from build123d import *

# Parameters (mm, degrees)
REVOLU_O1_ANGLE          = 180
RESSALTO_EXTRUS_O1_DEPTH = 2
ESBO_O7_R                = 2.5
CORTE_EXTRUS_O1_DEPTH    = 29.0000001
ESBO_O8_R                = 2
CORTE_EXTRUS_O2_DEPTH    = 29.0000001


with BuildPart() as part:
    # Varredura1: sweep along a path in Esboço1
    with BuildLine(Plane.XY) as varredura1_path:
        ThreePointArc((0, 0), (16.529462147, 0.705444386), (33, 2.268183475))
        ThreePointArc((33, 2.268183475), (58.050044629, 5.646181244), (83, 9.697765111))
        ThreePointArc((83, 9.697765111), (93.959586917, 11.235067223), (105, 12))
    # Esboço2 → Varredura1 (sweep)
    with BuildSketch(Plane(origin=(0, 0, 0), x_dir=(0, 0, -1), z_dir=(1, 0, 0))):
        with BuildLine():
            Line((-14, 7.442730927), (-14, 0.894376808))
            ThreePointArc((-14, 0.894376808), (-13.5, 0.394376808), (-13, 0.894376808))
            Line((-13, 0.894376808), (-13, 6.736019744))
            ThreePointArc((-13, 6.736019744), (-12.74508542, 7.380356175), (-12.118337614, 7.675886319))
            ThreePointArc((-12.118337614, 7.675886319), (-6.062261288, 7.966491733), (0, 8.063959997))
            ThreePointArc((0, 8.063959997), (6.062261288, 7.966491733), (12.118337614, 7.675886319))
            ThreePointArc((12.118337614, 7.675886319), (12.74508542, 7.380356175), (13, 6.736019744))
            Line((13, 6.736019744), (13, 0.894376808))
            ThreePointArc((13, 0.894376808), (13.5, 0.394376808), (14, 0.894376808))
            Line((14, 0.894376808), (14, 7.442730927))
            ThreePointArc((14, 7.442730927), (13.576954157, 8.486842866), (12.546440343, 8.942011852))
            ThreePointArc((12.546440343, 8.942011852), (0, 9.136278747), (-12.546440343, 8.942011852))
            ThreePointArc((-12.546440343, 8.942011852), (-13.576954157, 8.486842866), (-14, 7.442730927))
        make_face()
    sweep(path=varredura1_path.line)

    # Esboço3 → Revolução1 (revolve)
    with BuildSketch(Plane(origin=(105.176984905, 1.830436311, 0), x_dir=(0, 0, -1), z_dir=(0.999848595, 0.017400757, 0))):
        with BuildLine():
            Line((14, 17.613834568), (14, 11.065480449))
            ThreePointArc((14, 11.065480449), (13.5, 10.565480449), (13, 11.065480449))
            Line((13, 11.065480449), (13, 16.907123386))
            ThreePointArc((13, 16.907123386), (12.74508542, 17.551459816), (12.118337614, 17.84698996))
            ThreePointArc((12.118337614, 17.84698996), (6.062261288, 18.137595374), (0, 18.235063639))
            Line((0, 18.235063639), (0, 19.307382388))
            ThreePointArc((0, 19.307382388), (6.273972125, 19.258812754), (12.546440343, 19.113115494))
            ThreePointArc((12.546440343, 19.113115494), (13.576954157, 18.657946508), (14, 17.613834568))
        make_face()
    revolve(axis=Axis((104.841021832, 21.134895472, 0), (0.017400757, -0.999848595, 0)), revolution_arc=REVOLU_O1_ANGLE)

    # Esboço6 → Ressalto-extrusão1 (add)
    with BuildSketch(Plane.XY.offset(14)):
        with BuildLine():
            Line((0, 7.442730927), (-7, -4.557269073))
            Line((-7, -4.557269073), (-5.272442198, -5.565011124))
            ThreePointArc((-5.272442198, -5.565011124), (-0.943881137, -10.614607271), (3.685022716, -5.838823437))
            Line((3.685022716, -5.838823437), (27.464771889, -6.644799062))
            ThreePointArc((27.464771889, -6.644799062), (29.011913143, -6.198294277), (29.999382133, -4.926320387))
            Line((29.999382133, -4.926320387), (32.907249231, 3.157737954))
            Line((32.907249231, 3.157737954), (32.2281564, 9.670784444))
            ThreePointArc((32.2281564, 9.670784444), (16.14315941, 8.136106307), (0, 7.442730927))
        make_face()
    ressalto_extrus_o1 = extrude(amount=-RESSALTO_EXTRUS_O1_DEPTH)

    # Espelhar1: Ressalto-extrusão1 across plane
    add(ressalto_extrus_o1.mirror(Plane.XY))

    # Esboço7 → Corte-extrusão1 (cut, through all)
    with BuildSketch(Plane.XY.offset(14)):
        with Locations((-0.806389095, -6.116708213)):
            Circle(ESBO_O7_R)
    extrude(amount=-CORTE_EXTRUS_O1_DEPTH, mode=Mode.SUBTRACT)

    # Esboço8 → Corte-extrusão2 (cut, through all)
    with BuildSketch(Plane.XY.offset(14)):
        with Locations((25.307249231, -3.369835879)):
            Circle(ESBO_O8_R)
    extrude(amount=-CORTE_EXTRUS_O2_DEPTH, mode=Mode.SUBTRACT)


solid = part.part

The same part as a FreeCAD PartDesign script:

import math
import FreeCAD as App
import Part
import Sketcher
from FreeCAD import Vector
Q = App.Units.Quantity

doc = App.newDocument("Part")
body = doc.addObject("PartDesign::Body", "Body")

# Sketch on YZ plane
sketch1 = body.newObject("Sketcher::SketchObject", "Sketch")
sketch1.AttachmentSupport = (doc.getObject("YZ_Plane"), [""])
sketch1.MapMode = "FlatFace"
sketch1.addGeometry([
    Part.LineSegment(Vector(7.442731, 14, 0), Vector(0.894377, 14, 0)),  # 0
    Part.ArcOfCircle(Part.Circle(Vector(0.894377, 13.5, 0), Vector(0, 0, 1), 0.5), math.radians(90), math.radians(270)),  # 1
    Part.LineSegment(Vector(0.894377, 13, 0), Vector(6.73602, 13, 0)),  # 2
    Part.ArcOfCircle(Part.Circle(Vector(6.73602, 12.058212, 0), Vector(0, 0, 1), 0.941788), math.radians(3.660354), math.radians(90)),  # 3
    Part.ArcOfCircle(Part.Circle(Vector(-182.172237, -0.026679, 0), Vector(0, 0, 1), 190.236199), math.radians(0.008035), math.radians(3.660354)),  # 4
    Part.ArcOfCircle(Part.Circle(Vector(-182.172237, 0.026679, 0), Vector(0, 0, 1), 190.236199), math.radians(-3.660354), math.radians(-0.008035)),  # 5
    Part.ArcOfCircle(Part.Circle(Vector(6.73602, -12.058212, 0), Vector(0, 0, 1), 0.941788), math.radians(-90), math.radians(-3.660354)),  # 6
    Part.LineSegment(Vector(6.73602, -13, 0), Vector(0.894377, -13, 0)),  # 7
    Part.ArcOfCircle(Part.Circle(Vector(0.894377, -13.5, 0), Vector(0, 0, 1), 0.5), math.radians(90), math.radians(270)),  # 8
    Part.LineSegment(Vector(0.894377, -14, 0), Vector(7.442731, -14, 0)),  # 9
    Part.ArcOfCircle(Part.Circle(Vector(7.442731, -12.5, 0), Vector(0, 0, 1), 1.5), math.radians(-90), math.radians(-1.774174)),  # 10
    Part.ArcOfCircle(Part.Circle(Vector(-396.107509, 0, 0), Vector(0, 0, 1), 405.243788), math.radians(-1.774174), math.radians(1.774174)),  # 11
    Part.ArcOfCircle(Part.Circle(Vector(7.442731, 12.5, 0), Vector(0, 0, 1), 1.5), math.radians(1.774174), math.radians(90)),  # 12
], False)
sketch1.addConstraint([
    Sketcher.Constraint("Tangent", 0, 2, 1, 1),
    Sketcher.Constraint("Tangent", 1, 2, 2, 1),
    Sketcher.Constraint("Tangent", 2, 2, 3, 2),
    Sketcher.Constraint("Tangent", 3, 1, 4, 2),
    Sketcher.Constraint("Coincident", 4, 1, 5, 2),
    Sketcher.Constraint("Tangent", 5, 1, 6, 2),
    Sketcher.Constraint("Tangent", 6, 1, 7, 1),
    Sketcher.Constraint("Tangent", 7, 2, 8, 1),
    Sketcher.Constraint("Tangent", 8, 2, 9, 1),
    Sketcher.Constraint("Tangent", 9, 2, 10, 1),
    Sketcher.Constraint("Tangent", 10, 2, 11, 1),
    Sketcher.Constraint("Tangent", 11, 2, 12, 1),
    Sketcher.Constraint("Tangent", 12, 2, 0, 1),
    Sketcher.Constraint("Horizontal", 0),
    Sketcher.Constraint("Horizontal", 2),
    Sketcher.Constraint("Horizontal", 7),
    Sketcher.Constraint("Horizontal", 9),
    Sketcher.Constraint("Equal", 4, 5),
    Sketcher.Constraint("Equal", 3, 6),
    Sketcher.Constraint("Equal", 1, 8),
    Sketcher.Constraint("Equal", 10, 12),
    Sketcher.Constraint("Symmetric", 4, 3, 5, 3, -1),
    Sketcher.Constraint("Symmetric", 1, 3, 8, 3, -1),
    Sketcher.Constraint("PointOnObject", 11, 3, -1),
    Sketcher.Constraint("Radius", 1, Q("0.5 mm")),
    Sketcher.Constraint("Radius", 10, Q("1.5 mm")),
    Sketcher.Constraint("DistanceY", -1, 1, 0, 2, Q("14 mm")),
    Sketcher.Constraint("Radius", 4, Q("190.236199 mm")),
    Sketcher.Constraint("Radius", 11, Q("405.243788 mm")),
    Sketcher.Constraint("Radius", 3, Q("0.941788 mm")),
    Sketcher.Constraint("DistanceX", 0, 2, 0, 1, Q("6.548354 mm")),
    Sketcher.Constraint("DistanceX", 2, 1, 2, 2, Q("5.841643 mm")),
    Sketcher.Constraint("DistanceX", -1, 1, 3, 3, Q("6.73602 mm")),
    Sketcher.Constraint("DistanceY", 4, 3, -1, 1, Q("0.026679 mm")),
])

# Sketch on XY plane
sketch2 = body.newObject("Sketcher::SketchObject", "Sketch001")
sketch2.AttachmentSupport = (doc.getObject("XY_Plane"), [""])
sketch2.MapMode = "FlatFace"
sketch2.addGeometry([
    Part.ArcOfCircle(Part.Circle(Vector(-5, 318, 0), Vector(0, 0, 1), 319), math.radians(-89.04), math.radians(-83.09)),
    Part.ArcOfCircle(Part.Circle(Vector(-80, 934, 0), Vector(0, 0, 1), 938), math.radians(-83.09), math.radians(-80)),
    Part.ArcOfCircle(Part.Circle(Vector(110, -146, 0), Vector(0, 0, 1), 158), math.radians(91.95), math.radians(100)),
], False)
sketch2.addConstraint([
    Sketcher.Constraint("Tangent", 0, 2, 1, 1),
    Sketcher.Constraint("Tangent", 1, 2, 2, 2),
    Sketcher.Constraint("Coincident", 0, 1, -1, 1),
    Sketcher.Constraint("DistanceX", -1, 1, 0, 2, Q("33 mm")),
    Sketcher.Constraint("DistanceX", -1, 1, 2, 1, Q("105 mm")),
    Sketcher.Constraint("DistanceY", -1, 1, 2, 1, Q("12 mm")),
    Sketcher.Constraint("Radius", 1, Q("938.22726 mm")),
    Sketcher.Constraint("Radius", 2, Q("157.71041 mm")),
    Sketcher.Constraint("Radius", 0, Q("318.532817 mm")),
    Sketcher.Constraint("DistanceY", 0, 2, 1, 3, Q("931.4159 mm")),
])
doc.recompute()

additivepipe = body.newObject("PartDesign::AdditivePipe", "AdditivePipe")
additivepipe.Profile = sketch1
additivepipe.Spine = (sketch2, ["Edge1", "Edge2", "Edge3"])

# Sketch on an angled plane
sketch3 = body.newObject("Sketcher::SketchObject", "Sketch002")
sketch3.Placement = App.Placement(Vector(105.176985, 1.830436, 0), App.Rotation(Vector(0, 0, -1), Vector(-0.017400757, 0.999848595, 0), Vector(0.999848595, 0.017400757, 0), "ZXY"))
sketch3.addGeometry([
    Part.LineSegment(Vector(14, 11.1, 0), Vector(14, 17.6, 0)),  # 0
    Part.ArcOfCircle(Part.Circle(Vector(12.5, 17.6, 0), Vector(0, 0, 1), 1.5), math.radians(0), math.radians(88)),  # 1
    Part.ArcOfCircle(Part.Circle(Vector(0, -385.9, 0), Vector(0, 0, 1), 405.2), math.radians(88.23), math.radians(90)),  # 2
    Part.LineSegment(Vector(0, 19.3, 0), Vector(0, 18.2, 0)),  # 3
    Part.ArcOfCircle(Part.Circle(Vector(0, -172, 0), Vector(0, 0, 1), 190.2), math.radians(86.34), math.radians(89.99)),  # 4
    Part.ArcOfCircle(Part.Circle(Vector(12.1, 16.9, 0), Vector(0, 0, 1), 0.9), math.radians(0), math.radians(86)),  # 5
    Part.LineSegment(Vector(13, 16.9, 0), Vector(13, 11.1, 0)),  # 6
    Part.ArcOfCircle(Part.Circle(Vector(13.5, 11.1, 0), Vector(0, 0, 1), 0.5), math.radians(180), math.radians(360)),  # 7
], False)
sketch3.addConstraint([
    Sketcher.Constraint("Tangent", 0, 2, 1, 1),
    Sketcher.Constraint("Tangent", 1, 2, 2, 1),
    Sketcher.Constraint("Coincident", 2, 2, 3, 1),
    Sketcher.Constraint("Coincident", 3, 2, 4, 2),
    Sketcher.Constraint("Tangent", 4, 1, 5, 2),
    Sketcher.Constraint("Tangent", 5, 1, 6, 1),
    Sketcher.Constraint("Tangent", 6, 2, 7, 1),
    Sketcher.Constraint("Tangent", 7, 2, 0, 1),
    Sketcher.Constraint("Vertical", 0),
    Sketcher.Constraint("Vertical", 3),
    Sketcher.Constraint("Vertical", 6),
    Sketcher.Constraint("PointOnObject", 2, 3, -2),
    Sketcher.Constraint("PointOnObject", 3, 2, -2),
    Sketcher.Constraint("Radius", 1, Q("1.5 mm")),
    Sketcher.Constraint("Radius", 7, Q("0.5 mm")),
    Sketcher.Constraint("DistanceX", -1, 1, 0, 2, Q("14 mm")),
    Sketcher.Constraint("Radius", 4, Q("190.2362 mm")),
    Sketcher.Constraint("Radius", 2, Q("405.243789 mm")),
    Sketcher.Constraint("Radius", 5, Q("0.941788 mm")),
    Sketcher.Constraint("DistanceY", 3, 2, 3, 1, Q("1.072319 mm")),
    Sketcher.Constraint("DistanceY", 0, 1, 0, 2, Q("6.548354 mm")),
    Sketcher.Constraint("DistanceY", 6, 2, 6, 1, Q("5.841643 mm")),
    Sketcher.Constraint("DistanceY", -1, 1, 7, 3, Q("11.06548 mm")),
])
revolution = body.newObject("PartDesign::Revolution", "Revolution")
revolution.Profile = sketch3
revolution.ReferenceAxis = (sketch3, ["V_Axis"])
revolution.Angle = 180
revolution.Reversed = True

# Sketch on XY plane
sketch4 = body.newObject("Sketcher::SketchObject", "Sketch003")
sketch4.AttachmentSupport = (doc.getObject("XY_Plane"), [""])
sketch4.MapMode = "FlatFace"
sketch4.AttachmentOffset = App.Placement(Vector(0, 0, 14), App.Rotation())
sketch4.addGeometry([
    Part.LineSegment(Vector(0, 7.442731, 0), Vector(-7, -4.557269, 0)),  # 0
    Part.LineSegment(Vector(-7, -4.557269, 0), Vector(-5.272442, -5.565011, 0)),  # 1
    Part.ArcOfCircle(Part.Circle(Vector(-0.806389, -6.116708, 0), Vector(0, 0, 1), 4.5), math.radians(172.957858), math.radians(363.540391)),  # 2
    Part.LineSegment(Vector(3.685023, -5.838823, 0), Vector(27.464772, -6.644799, 0)),  # 3
    Part.ArcOfCircle(Part.Circle(Vector(27.552844, -4.046291, 0), Vector(0, 0, 1), 2.6), math.radians(-91.941203), math.radians(-19.783855)),  # 4
    Part.LineSegment(Vector(29.999382, -4.92632, 0), Vector(32.907249, 3.157738, 0)),  # 5
    Part.LineSegment(Vector(32.907249, 3.157738, 0), Vector(32.228156, 9.670784, 0)),  # 6
    Part.ArcOfCircle(Part.Circle(Vector(-5.209139, 316.990988, 0), Vector(0, 0, 1), 309.592085), math.radians(-89.035906), math.radians(-83.054534)),  # 7
], False)
sketch4.addConstraint([
    Sketcher.Constraint("Coincident", 0, 2, 1, 1),
    Sketcher.Constraint("Coincident", 1, 2, 2, 1),
    Sketcher.Constraint("Coincident", 2, 2, 3, 1),
    Sketcher.Constraint("Coincident", 3, 2, 4, 1),
    Sketcher.Constraint("Coincident", 4, 2, 5, 1),
    Sketcher.Constraint("Coincident", 5, 2, 6, 1),
    Sketcher.Constraint("Coincident", 6, 2, 7, 2),
    Sketcher.Constraint("Coincident", 7, 1, 0, 1),
    Sketcher.Constraint("PointOnObject", 7, 1, -2),
    Sketcher.Constraint("Radius", 2, Q("4.5 mm")),
    Sketcher.Constraint("Radius", 4, Q("2.6 mm")),
    Sketcher.Constraint("Distance", 1, Q("2 mm")),
    Sketcher.Constraint("DistanceX", 0, 2, -1, 1, Q("7 mm")),
    Sketcher.Constraint("DistanceY", 0, 2, 7, 1, Q("12 mm")),
    Sketcher.Constraint("Radius", 7, Q("309.592085 mm")),
    Sketcher.Constraint("DistanceY", 1, 2, 7, 3, Q("322.556 mm")),
    Sketcher.Constraint("DistanceY", 3, 2, -1, 1, Q("6.644799 mm")),
    Sketcher.Constraint("Distance", 5, Q("8.59114 mm")),
    Sketcher.Constraint("DistanceX", 2, 3, -1, 1, Q("0.806389 mm")),
    Sketcher.Constraint("DistanceY", 2, 3, -1, 1, Q("6.116708 mm")),
    Sketcher.Constraint("DistanceY", 4, 3, -1, 1, Q("4.046291 mm")),
    Sketcher.Constraint("DistanceX", 7, 3, -1, 1, Q("5.209139 mm")),
    Sketcher.Constraint("DistanceX", -1, 1, 3, 2, Q("27.464772 mm")),
    Sketcher.Constraint("DistanceY", 4, 2, -1, 1, Q("4.92632 mm")),
    Sketcher.Constraint("DistanceX", -1, 1, 5, 2, Q("32.907249 mm")),
    Sketcher.Constraint("DistanceX", 2, 3, 2, 2, Q("4.491412 mm")),
    Sketcher.Constraint("Distance", 6, Q("6.548354 mm")),
])
pad1 = body.newObject("PartDesign::Pad", "Pad")
pad1.Profile = sketch4
pad1.Length = 2
pad1.Reversed = True
doc.recompute()

mirrored = body.newObject("PartDesign::Mirrored", "Mirrored")
mirrored.Originals = [pad1]
mirrored.MirrorPlane = (doc.getObject("XY_Plane"), [""])
body.Tip = mirrored

# Sketch on XY plane
sketch5 = body.newObject("Sketcher::SketchObject", "Sketch004")
sketch5.AttachmentSupport = (doc.getObject("XY_Plane"), [""])
sketch5.MapMode = "FlatFace"
sketch5.AttachmentOffset = App.Placement(Vector(0, 0, 14), App.Rotation())
sketch5.addGeometry(Part.Circle(Vector(-0.8, -6.1, 0), Vector(0, 0, 1), 2.5), False)
sketch5.addConstraint([
    Sketcher.Constraint("Diameter", 0, Q("5 mm")),
    Sketcher.Constraint("DistanceX", 0, 3, -1, 1, Q("0.806389 mm")),
    Sketcher.Constraint("DistanceY", 0, 3, -1, 1, Q("6.116708 mm")),
])
pocket1 = body.newObject("PartDesign::Pocket", "Pocket")
pocket1.Profile = sketch5
pocket1.Type = "ThroughAll"

# Sketch on XY plane
sketch6 = body.newObject("Sketcher::SketchObject", "Sketch005")
sketch6.AttachmentSupport = (doc.getObject("XY_Plane"), [""])
sketch6.MapMode = "FlatFace"
sketch6.AttachmentOffset = App.Placement(Vector(0, 0, 14), App.Rotation())
sketch6.addGeometry(Part.Circle(Vector(25.3, -3.4, 0), Vector(0, 0, 1), 2), False)
sketch6.addConstraint([
    Sketcher.Constraint("Diameter", 0, Q("4 mm")),
    Sketcher.Constraint("DistanceX", -1, 1, 0, 3, Q("25.307249 mm")),
    Sketcher.Constraint("DistanceY", 0, 3, -1, 1, Q("3.369836 mm")),
])
pocket2 = body.newObject("PartDesign::Pocket", "Pocket001")
pocket2.Profile = sketch6
pocket2.Type = "ThroughAll"

doc.recompute()
